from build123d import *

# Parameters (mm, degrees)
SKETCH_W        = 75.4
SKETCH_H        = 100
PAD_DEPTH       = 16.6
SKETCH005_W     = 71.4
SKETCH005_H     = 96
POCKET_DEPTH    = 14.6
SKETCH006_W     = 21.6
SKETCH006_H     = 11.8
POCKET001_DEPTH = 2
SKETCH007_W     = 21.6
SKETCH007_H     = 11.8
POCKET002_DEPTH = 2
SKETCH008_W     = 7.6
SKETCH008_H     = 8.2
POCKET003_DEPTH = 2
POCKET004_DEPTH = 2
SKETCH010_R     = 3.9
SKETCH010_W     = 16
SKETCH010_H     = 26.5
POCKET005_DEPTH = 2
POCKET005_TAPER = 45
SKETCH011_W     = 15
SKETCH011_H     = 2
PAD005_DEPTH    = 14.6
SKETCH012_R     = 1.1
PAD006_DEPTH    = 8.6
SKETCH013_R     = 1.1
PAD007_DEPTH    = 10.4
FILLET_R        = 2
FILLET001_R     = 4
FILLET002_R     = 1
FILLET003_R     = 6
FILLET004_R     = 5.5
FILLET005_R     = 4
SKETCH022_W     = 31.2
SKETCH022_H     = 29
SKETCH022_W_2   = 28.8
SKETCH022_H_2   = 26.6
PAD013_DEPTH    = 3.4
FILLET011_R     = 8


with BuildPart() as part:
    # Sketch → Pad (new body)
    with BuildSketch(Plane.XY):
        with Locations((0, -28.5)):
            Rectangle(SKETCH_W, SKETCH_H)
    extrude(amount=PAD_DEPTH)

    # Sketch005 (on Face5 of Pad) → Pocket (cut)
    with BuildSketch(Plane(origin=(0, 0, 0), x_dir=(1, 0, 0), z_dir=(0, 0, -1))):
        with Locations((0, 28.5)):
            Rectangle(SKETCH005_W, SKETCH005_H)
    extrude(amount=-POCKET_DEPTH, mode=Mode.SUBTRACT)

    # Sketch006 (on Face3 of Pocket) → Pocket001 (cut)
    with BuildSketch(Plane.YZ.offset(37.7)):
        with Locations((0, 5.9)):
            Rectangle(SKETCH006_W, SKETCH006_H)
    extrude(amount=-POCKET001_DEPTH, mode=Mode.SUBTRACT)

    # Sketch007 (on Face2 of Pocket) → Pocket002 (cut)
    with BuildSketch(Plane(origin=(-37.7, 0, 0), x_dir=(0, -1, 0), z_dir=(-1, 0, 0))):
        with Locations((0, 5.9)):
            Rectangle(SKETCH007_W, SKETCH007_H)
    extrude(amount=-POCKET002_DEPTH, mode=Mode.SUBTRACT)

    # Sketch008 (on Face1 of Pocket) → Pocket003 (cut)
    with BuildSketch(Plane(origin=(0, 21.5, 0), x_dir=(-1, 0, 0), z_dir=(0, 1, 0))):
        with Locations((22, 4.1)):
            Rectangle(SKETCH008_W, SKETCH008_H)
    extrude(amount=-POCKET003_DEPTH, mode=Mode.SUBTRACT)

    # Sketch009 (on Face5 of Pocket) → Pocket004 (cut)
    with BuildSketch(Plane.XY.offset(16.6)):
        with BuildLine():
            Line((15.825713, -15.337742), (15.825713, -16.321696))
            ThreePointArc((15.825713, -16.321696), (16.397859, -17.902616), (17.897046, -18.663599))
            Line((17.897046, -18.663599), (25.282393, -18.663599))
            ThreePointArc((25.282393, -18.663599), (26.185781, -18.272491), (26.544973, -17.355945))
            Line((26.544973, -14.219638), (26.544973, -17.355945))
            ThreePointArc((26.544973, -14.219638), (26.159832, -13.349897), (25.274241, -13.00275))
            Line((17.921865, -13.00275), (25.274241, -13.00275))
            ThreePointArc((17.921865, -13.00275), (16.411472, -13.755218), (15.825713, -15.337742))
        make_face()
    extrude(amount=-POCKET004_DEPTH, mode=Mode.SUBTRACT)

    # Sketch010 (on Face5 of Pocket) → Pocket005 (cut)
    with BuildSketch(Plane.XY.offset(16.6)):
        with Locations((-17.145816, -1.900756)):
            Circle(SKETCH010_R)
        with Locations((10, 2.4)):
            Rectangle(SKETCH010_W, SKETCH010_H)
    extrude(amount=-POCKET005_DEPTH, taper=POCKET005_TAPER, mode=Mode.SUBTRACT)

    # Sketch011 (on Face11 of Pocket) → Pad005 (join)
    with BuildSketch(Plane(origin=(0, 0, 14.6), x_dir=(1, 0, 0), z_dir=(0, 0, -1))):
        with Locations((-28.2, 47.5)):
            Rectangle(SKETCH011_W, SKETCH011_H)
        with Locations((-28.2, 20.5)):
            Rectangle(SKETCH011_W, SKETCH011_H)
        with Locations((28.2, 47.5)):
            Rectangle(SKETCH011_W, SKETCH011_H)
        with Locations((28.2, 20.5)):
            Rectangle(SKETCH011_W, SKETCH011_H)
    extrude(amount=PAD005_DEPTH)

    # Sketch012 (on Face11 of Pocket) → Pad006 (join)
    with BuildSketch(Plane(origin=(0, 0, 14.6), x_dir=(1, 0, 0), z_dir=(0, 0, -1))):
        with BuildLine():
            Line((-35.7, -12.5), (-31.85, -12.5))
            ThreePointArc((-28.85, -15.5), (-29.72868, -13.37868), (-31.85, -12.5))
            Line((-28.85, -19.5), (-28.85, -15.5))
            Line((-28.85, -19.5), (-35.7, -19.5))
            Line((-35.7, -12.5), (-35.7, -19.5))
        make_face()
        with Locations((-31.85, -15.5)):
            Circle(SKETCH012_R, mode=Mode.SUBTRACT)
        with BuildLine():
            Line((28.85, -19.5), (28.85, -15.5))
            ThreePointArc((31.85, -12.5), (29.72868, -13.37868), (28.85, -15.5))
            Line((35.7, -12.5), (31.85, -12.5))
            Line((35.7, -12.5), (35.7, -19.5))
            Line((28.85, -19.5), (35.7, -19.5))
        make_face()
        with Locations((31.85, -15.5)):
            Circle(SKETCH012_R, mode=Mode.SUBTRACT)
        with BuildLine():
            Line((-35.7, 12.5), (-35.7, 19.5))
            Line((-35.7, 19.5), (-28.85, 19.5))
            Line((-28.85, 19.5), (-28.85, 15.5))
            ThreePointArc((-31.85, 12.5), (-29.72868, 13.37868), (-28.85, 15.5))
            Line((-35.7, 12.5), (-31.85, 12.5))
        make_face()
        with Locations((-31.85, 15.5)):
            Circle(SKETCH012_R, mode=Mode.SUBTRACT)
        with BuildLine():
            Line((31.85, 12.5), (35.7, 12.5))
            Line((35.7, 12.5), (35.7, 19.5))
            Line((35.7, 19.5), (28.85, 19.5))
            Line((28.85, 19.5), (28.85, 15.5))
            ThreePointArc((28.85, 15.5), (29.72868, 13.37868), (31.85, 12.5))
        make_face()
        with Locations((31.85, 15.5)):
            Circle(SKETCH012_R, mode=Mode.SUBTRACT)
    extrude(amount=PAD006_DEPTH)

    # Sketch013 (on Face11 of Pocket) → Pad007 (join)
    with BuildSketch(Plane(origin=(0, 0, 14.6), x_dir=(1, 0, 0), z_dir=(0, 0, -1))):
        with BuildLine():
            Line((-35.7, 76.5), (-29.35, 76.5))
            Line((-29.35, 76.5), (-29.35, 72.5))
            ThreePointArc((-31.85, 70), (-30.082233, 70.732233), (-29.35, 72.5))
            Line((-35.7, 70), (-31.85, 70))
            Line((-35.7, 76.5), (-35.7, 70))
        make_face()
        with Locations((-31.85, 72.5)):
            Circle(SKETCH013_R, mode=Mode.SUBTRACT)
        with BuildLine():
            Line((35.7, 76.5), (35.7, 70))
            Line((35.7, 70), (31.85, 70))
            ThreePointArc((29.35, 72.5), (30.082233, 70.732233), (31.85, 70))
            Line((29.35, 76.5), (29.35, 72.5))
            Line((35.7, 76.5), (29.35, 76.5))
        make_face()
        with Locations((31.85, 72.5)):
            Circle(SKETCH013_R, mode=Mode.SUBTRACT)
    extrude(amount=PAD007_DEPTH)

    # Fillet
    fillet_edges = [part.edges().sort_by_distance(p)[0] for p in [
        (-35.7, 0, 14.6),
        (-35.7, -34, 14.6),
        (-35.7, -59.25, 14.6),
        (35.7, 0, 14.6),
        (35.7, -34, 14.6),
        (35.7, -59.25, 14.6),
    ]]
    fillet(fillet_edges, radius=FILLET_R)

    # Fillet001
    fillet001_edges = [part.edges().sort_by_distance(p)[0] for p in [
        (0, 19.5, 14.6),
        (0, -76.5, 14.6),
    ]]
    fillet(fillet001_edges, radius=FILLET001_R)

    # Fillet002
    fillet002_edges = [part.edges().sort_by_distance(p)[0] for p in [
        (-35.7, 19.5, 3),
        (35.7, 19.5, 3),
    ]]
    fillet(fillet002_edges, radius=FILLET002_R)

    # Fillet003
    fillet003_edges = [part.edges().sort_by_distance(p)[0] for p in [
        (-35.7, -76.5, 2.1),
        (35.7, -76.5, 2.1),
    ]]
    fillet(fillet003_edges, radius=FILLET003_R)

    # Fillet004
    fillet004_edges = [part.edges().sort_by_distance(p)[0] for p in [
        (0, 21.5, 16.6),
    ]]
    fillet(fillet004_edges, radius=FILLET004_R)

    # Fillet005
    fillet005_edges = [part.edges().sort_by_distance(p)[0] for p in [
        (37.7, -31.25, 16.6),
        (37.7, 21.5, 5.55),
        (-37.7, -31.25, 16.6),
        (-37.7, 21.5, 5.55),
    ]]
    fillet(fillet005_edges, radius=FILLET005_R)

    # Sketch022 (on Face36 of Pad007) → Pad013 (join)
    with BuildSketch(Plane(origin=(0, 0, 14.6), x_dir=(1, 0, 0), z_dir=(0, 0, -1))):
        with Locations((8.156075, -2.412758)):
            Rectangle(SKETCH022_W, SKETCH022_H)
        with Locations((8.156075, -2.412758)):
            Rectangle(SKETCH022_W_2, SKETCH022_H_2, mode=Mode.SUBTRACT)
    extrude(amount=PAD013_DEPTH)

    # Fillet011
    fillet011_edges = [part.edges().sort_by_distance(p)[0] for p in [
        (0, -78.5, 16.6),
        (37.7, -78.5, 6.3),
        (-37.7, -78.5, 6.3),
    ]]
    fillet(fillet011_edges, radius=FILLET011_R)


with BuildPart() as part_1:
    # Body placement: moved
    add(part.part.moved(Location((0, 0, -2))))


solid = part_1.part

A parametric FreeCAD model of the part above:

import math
import FreeCAD as App
import Part
import Sketcher
from FreeCAD import Vector


def edges_at(feature, points):
    """Names of the edges that pass closest to the given points."""
    edges = feature.Shape.Edges
    near = lambda p: min(range(len(edges)), key=lambda i: edges[i].distToShape(Part.Vertex(*p))[0])
    return sorted({f"Edge{near(p) + 1}" for p in points})


def add_polygon(sketch, points):
    """Adds a closed chain of lines whose ends are joined by coincident constraints."""
    first, n = sketch.GeometryCount, len(points)
    for a, b in zip(points, points[1:] + points[:1]):
        sketch.addGeometry(Part.LineSegment(App.Vector(*a, 0), App.Vector(*b, 0)), False)
    for i in range(n):
        sketch.addConstraint(Sketcher.Constraint("Coincident", first + i, 2, first + (i + 1) % n, 1))

doc = App.newDocument("Part")
body = doc.addObject("PartDesign::Body", "Body")

sketch1 = doc.addObject("Sketcher::SketchObject", "Sketch")
body.addObject(sketch1)
sketch1.AttachmentSupport = (doc.XY_Plane, [""])
sketch1.MapMode = "FlatFace"
add_polygon(sketch1, [(-37.7, 21.5), (-37.7, -78.5), (37.7, -78.5), (37.7, 21.5)])
sketch1.addConstraint([
    Sketcher.Constraint("Vertical", 0),
    Sketcher.Constraint("Horizontal", 1),
    Sketcher.Constraint("Vertical", 2),
    Sketcher.Constraint("Horizontal", 3),
    Sketcher.Constraint("DistanceY", 0, 2, 0, 1, 100.0),
    Sketcher.Constraint("DistanceX", 1, 1, 1, 2, 75.4),
    Sketcher.Constraint("DistanceX", 0, 2, -1, 1, 37.7),
    Sketcher.Constraint("DistanceY", 0, 2, -1, 1, 78.5),
])
pad1 = doc.addObject("PartDesign::Pad", "Pad")
body.addObject(pad1)
pad1.Profile = sketch1
pad1.Length = 16.6

sketch2 = doc.addObject("Sketcher::SketchObject", "Sketch001")
body.addObject(sketch2)
sketch2.AttachmentSupport = (doc.XY_Plane, [""])
sketch2.MapMode = "FlatFace"
add_polygon(sketch2, [(-35.7, -76.5), (-35.7, 19.5), (35.7, 19.5), (35.7, -76.5)])
sketch2.addConstraint([
    Sketcher.Constraint("Vertical", 0),
    Sketcher.Constraint("Horizontal", 1),
    Sketcher.Constraint("Vertical", 2),
    Sketcher.Constraint("Horizontal", 3),
    Sketcher.Constraint("DistanceY", 0, 1, 0, 2, 96.0),
    Sketcher.Constraint("DistanceX", 1, 1, 1, 2, 71.4),
    Sketcher.Constraint("DistanceX", 0, 2, -1, 1, 35.7),
    Sketcher.Constraint("DistanceY", -1, 1, 0, 2, 19.5),
])
pocket1 = doc.addObject("PartDesign::Pocket", "Pocket")
body.addObject(pocket1)
pocket1.Profile = sketch2
pocket1.Length = 14.6
pocket1.Reversed = True

sketch3 = doc.addObject("Sketcher::SketchObject", "Sketch002")
body.addObject(sketch3)
sketch3.AttachmentSupport = (doc.YZ_Plane, [""])
sketch3.MapMode = "FlatFace"
sketch3.AttachmentOffset = App.Placement(Vector(0, 0, 37.7), App.Rotation())
add_polygon(sketch3, [(-10.8, 11.8), (-10.8, 0), (10.8, 0), (10.8, 11.8)])
sketch3.addConstraint([
    Sketcher.Constraint("Vertical", 0),
    Sketcher.Constraint("Horizontal", 1),
    Sketcher.Constraint("Vertical", 2),
    Sketcher.Constraint("Horizontal", 3),
    Sketcher.Constraint("Symmetric", 0, 2, 1, 2, -1, 1),
    Sketcher.Constraint("DistanceX", 1, 1, 1, 2, 21.6),
    Sketcher.Constraint("DistanceY", 0, 2, 0, 1, 11.8),
])
pocket2 = doc.addObject("PartDesign::Pocket", "Pocket001")
body.addObject(pocket2)
pocket2.Profile = sketch3
pocket2.Length = 2

sketch4 = doc.addObject("Sketcher::SketchObject", "Sketch003")
body.addObject(sketch4)
sketch4.AttachmentSupport = (doc.YZ_Plane, [""])
sketch4.MapMode = "FlatFace"
sketch4.AttachmentOffset = App.Placement(Vector(0, 0, -37.7), App.Rotation())
add_polygon(sketch4, [(10.8, 11.8), (10.8, 0), (-10.8, 0), (-10.8, 11.8)])
sketch4.addConstraint([
    Sketcher.Constraint("Vertical", 0),
    Sketcher.Constraint("Horizontal", 1),
    Sketcher.Constraint("Vertical", 2),
    Sketcher.Constraint("Horizontal", 3),
    Sketcher.Constraint("Symmetric", 0, 2, 1, 2, -1, 1),
    Sketcher.Constraint("DistanceX", 1, 2, 1, 1, 21.6),
    Sketcher.Constraint("DistanceY", 0, 2, 0, 1, 11.8),
])
pocket3 = doc.addObject("PartDesign::Pocket", "Pocket002")
body.addObject(pocket3)
pocket3.Profile = sketch4
pocket3.Length = 2
pocket3.Reversed = True

sketch5 = doc.addObject("Sketcher::SketchObject", "Sketch004")
body.addObject(sketch5)
sketch5.AttachmentSupport = (doc.XZ_Plane, [""])
sketch5.MapMode = "FlatFace"
sketch5.AttachmentOffset = App.Placement(Vector(0, 0, -21.5), App.Rotation())
add_polygon(sketch5, [(-18.2, 8.2), (-18.2, 0), (-25.8, 0), (-25.8, 8.2)])
sketch5.addConstraint([
    Sketcher.Constraint("Vertical", 0),
    Sketcher.Constraint("Horizontal", 1),
    Sketcher.Constraint("Vertical", 2),
    Sketcher.Constraint("Horizontal", 3),
    Sketcher.Constraint("PointOnObject", 0, 2, -1),
    Sketcher.Constraint("DistanceX", 1, 2, 1, 1, 7.6),
    Sketcher.Constraint("DistanceY", 0, 2, 0, 1, 8.2),
    Sketcher.Constraint("DistanceX", 0, 2, -1, 1, 18.2),
])
pocket4 = doc.addObject("PartDesign::Pocket", "Pocket003")
body.addObject(pocket4)
pocket4.Profile = sketch5
pocket4.Length = 2
pocket4.Reversed = True

sketch6 = doc.addObject("Sketcher::SketchObject", "Sketch005")
body.addObject(sketch6)
sketch6.AttachmentSupport = (doc.XY_Plane, [""])
sketch6.MapMode = "FlatFace"
sketch6.AttachmentOffset = App.Placement(Vector(0, 0, 16.6), App.Rotation())
sketch6.addGeometry([
    Part.LineSegment(Vector(15.825713, -15.337742, 0), Vector(15.825713, -16.321696, 0)),
    Part.ArcOfCircle(Part.Circle(Vector(18.108655, -16.389475, 0), Vector(0, 0, 1), 2.283948), math.radians(178.299421), math.radians(264.683896)),
    Part.LineSegment(Vector(17.897046, -18.663599, 0), Vector(25.282393, -18.663599, 0)),
    Part.ArcOfCircle(Part.Circle(Vector(25.264188, -17.382665, 0), Vector(0, 0, 1), 1.281063), math.radians(-89.185767), math.radians(1.195145)),
    Part.LineSegment(Vector(26.544973, -17.355945, 0), Vector(26.544973, -14.219638, 0)),
    Part.ArcOfCircle(Part.Circle(Vector(25.294977, -14.253019, 0), Vector(0, 0, 1), 1.250441), math.radians(1.529725), math.radians(90.950197)),
    Part.LineSegment(Vector(25.274241, -13.00275, 0), Vector(17.921865, -13.00275, 0)),
    Part.ArcOfCircle(Part.Circle(Vector(18.116778, -15.286093, 0), Vector(0, 0, 1), 2.291647), math.radians(94.879105), math.radians(181.291444)),
], False)
sketch6.addConstraint([
    Sketcher.Constraint("Coincident", 0, 2, 1, 1),
    Sketcher.Constraint("Coincident", 1, 2, 2, 1),
    Sketcher.Constraint("Coincident", 2, 2, 3, 1),
    Sketcher.Constraint("Coincident", 3, 2, 4, 1),
    Sketcher.Constraint("Coincident", 4, 2, 5, 1),
    Sketcher.Constraint("Coincident", 5, 2, 6, 1),
    Sketcher.Constraint("Coincident", 6, 2, 7, 1),
    Sketcher.Constraint("Coincident", 7, 2, 0, 1),
    Sketcher.Constraint("Vertical", 0),
    Sketcher.Constraint("Horizontal", 2),
    Sketcher.Constraint("Vertical", 4),
    Sketcher.Constraint("Horizontal", 6),
    Sketcher.Constraint("Radius", 5, 1.250441),
    Sketcher.Constraint("Radius", 1, 2.283948),
    Sketcher.Constraint("Radius", 3, 1.281063),
    Sketcher.Constraint("Radius", 7, 2.291647),
    Sketcher.Constraint("DistanceY", 1, 2, -1, 1, 18.663599),
    Sketcher.Constraint("DistanceX", 7, 3, 5, 3, 7.1782),
    Sketcher.Constraint("DistanceX", 2, 1, 2, 2, 7.385347),
    Sketcher.Constraint("DistanceX", 6, 2, 6, 1, 7.352376),
    Sketcher.Constraint("DistanceY", 0, 2, 0, 1, 0.983954),
    Sketcher.Constraint("DistanceY", 4, 1, 4, 2, 3.136307),
    Sketcher.Constraint("DistanceX", -1, 1, 3, 3, 25.264188),
    Sketcher.Constraint("DistanceY", 5, 3, -1, 1, 14.253019),
    Sketcher.Constraint("DistanceX", -1, 1, 5, 2, 25.274241),
    Sketcher.Constraint("DistanceY", 3, 3, 1, 3, 0.99319),
    Sketcher.Constraint("DistanceX", 3, 3, 5, 3, 0.030789),
    Sketcher.Constraint("DistanceX", 0, 2, 1, 3, 2.282942),
])
pocket5 = doc.addObject("PartDesign::Pocket", "Pocket004")
body.addObject(pocket5)
pocket5.Profile = sketch6
pocket5.Length = 2

sketch7 = doc.addObject("Sketcher::SketchObject", "Sketch006")
body.addObject(sketch7)
sketch7.AttachmentSupport = (doc.XY_Plane, [""])
sketch7.MapMode = "FlatFace"
sketch7.AttachmentOffset = App.Placement(Vector(0, 0, 16.6), App.Rotation())
sketch7.addGeometry(Part.Circle(Vector(-17.145816, -1.900756, 0), Vector(0, 0, 1), 3.9), False)
add_polygon(sketch7, [(2, 15.65), (2, -10.85), (18, -10.85), (18, 15.65)])
sketch7.addConstraint([
    Sketcher.Constraint("Vertical", 1),
    Sketcher.Constraint("Horizontal", 2),
    Sketcher.Constraint("Vertical", 3),
    Sketcher.Constraint("Horizontal", 4),
    Sketcher.Constraint("Diameter", 0, 7.8),
    Sketcher.Constraint("DistanceX", 2, 1, 2, 2, 16.0),
    Sketcher.Constraint("DistanceY", 1, 2, 1, 1, 26.5),
    Sketcher.Constraint("DistanceX", -1, 1, 1, 2, 2.0),
    Sketcher.Constraint("DistanceY", 1, 2, -1, 1, 10.85),
    Sketcher.Constraint("DistanceX", 0, 3, -1, 1, 17.145816),
    Sketcher.Constraint("DistanceY", 0, 3, -1, 1, 1.900756),
])
pocket6 = doc.addObject("PartDesign::Pocket", "Pocket005")
body.addObject(pocket6)
pocket6.Profile = sketch7
pocket6.Length = 2
pocket6.TaperAngle = -45

sketch8 = doc.addObject("Sketcher::SketchObject", "Sketch007")
body.addObject(sketch8)
sketch8.AttachmentSupport = (doc.XY_Plane, [""])
sketch8.MapMode = "FlatFace"
sketch8.AttachmentOffset = App.Placement(Vector(0, 0, 14.6), App.Rotation())
add_polygon(sketch8, [(-35.7, -48.5), (-35.7, -46.5), (-20.7, -46.5), (-20.7, -48.5)])
add_polygon(sketch8, [(-35.7, -21.5), (-35.7, -19.5), (-20.7, -19.5), (-20.7, -21.5)])
add_polygon(sketch8, [(20.7, -48.5), (20.7, -46.5), (35.7, -46.5), (35.7, -48.5)])
add_polygon(sketch8, [(20.7, -21.5), (20.7, -19.5), (35.7, -19.5), (35.7, -21.5)])
sketch8.addConstraint([
    Sketcher.Constraint("Vertical", 0),
    Sketcher.Constraint("Horizontal", 1),
    Sketcher.Constraint("Vertical", 2),
    Sketcher.Constraint("Horizontal", 3),
    Sketcher.Constraint("Vertical", 4),
    Sketcher.Constraint("Horizontal", 5),
    Sketcher.Constraint("Vertical", 6),
    Sketcher.Constraint("Horizontal", 7),
    Sketcher.Constraint("Vertical", 8),
    Sketcher.Constraint("Horizontal", 9),
    Sketcher.Constraint("Vertical", 10),
    Sketcher.Constraint("Horizontal", 11),
    Sketcher.Constraint("Vertical", 12),
    Sketcher.Constraint("Horizontal", 13),
    Sketcher.Constraint("Vertical", 14),
    Sketcher.Constraint("Horizontal", 15),
    Sketcher.Constraint("Symmetric", 1, 2, 8, 2, -2),
    Sketcher.Constraint("Symmetric", 3, 2, 10, 2, -2),
    Sketcher.Constraint("Symmetric", 5, 2, 12, 2, -2),
    Sketcher.Constraint("Symmetric", 7, 2, 14, 2, -2),
    Sketcher.Constraint("Vertical", 3, 2, 4, 2),
    Sketcher.Constraint("Vertical", 2, 2, 5, 2),
    Sketcher.Constraint("Equal", 2, 4),
    Sketcher.Constraint("DistanceX", 1, 1, 1, 2, 15.0),
    Sketcher.Constraint("DistanceY", 0, 1, 0, 2, 2.0),
    Sketcher.Constraint("DistanceY", 0, 2, 4, 2, 27.0),
    Sketcher.Constraint("DistanceX", 0, 2, -1, 1, 35.7),
    Sketcher.Constraint("DistanceY", 0, 2, -1, 1, 46.5),
])
pad2 = doc.addObject("PartDesign::Pad", "Pad001")
body.addObject(pad2)
pad2.Profile = sketch8
pad2.Length = 14.6
pad2.Reversed = True

sketch9 = doc.addObject("Sketcher::SketchObject", "Sketch008")
body.addObject(sketch9)
sketch9.AttachmentSupport = (doc.XY_Plane, [""])
sketch9.MapMode = "FlatFace"
sketch9.AttachmentOffset = App.Placement(Vector(0, 0, 14.6), App.Rotation())
sketch9.addGeometry([
    Part.LineSegment(Vector(-31.85, 12.5, 0), Vector(-35.7, 12.5, 0)),
    Part.LineSegment(Vector(-35.7, 12.5, 0), Vector(-35.7, 19.5, 0)),
    Part.LineSegment(Vector(-35.7, 19.5, 0), Vector(-28.85, 19.5, 0)),
    Part.LineSegment(Vector(-28.85, 19.5, 0), Vector(-28.85, 15.5, 0)),
    Part.ArcOfCircle(Part.Circle(Vector(-31.850001, 15.500001, 0), Vector(0, 0, 1), 3.000001), math.radians(-89.999978), math.radians(-0.000022)),
    Part.Circle(Vector(-31.85, 15.5, 0), Vector(0, 0, 1), 1.1),
    Part.LineSegment(Vector(28.85, 15.5, 0), Vector(28.85, 19.5, 0)),
    Part.LineSegment(Vector(28.85, 19.5, 0), Vector(35.7, 19.5, 0)),
    Part.LineSegment(Vector(35.7, 19.5, 0), Vector(35.7, 12.5, 0)),
    Part.LineSegment(Vector(35.7, 12.5, 0), Vector(31.85, 12.5, 0)),
    Part.ArcOfCircle(Part.Circle(Vector(31.850001, 15.500001, 0), Vector(0, 0, 1), 3.000001), math.radians(-179.999978), math.radians(-90.000022)),
    Part.Circle(Vector(31.85, 15.5, 0), Vector(0, 0, 1), 1.1),
    Part.LineSegment(Vector(-35.7, -19.5, 0), Vector(-35.7, -12.5, 0)),
    Part.LineSegment(Vector(-35.7, -12.5, 0), Vector(-31.85, -12.5, 0)),
    Part.ArcOfCircle(Part.Circle(Vector(-31.850001, -15.500001, 0), Vector(0, 0, 1), 3.000001), math.radians(0.000022), math.radians(89.999978)),
    Part.LineSegment(Vector(-28.85, -15.5, 0), Vector(-28.85, -19.5, 0)),
    Part.LineSegment(Vector(-28.85, -19.5, 0), Vector(-35.7, -19.5, 0)),
    Part.Circle(Vector(-31.85, -15.5, 0), Vector(0, 0, 1), 1.1),
    Part.LineSegment(Vector(31.85, -12.5, 0), Vector(35.7, -12.5, 0)),
    Part.LineSegment(Vector(35.7, -12.5, 0), Vector(35.7, -19.5, 0)),
    Part.LineSegment(Vector(35.7, -19.5, 0), Vector(28.85, -19.5, 0)),
    Part.LineSegment(Vector(28.85, -19.5, 0), Vector(28.85, -15.5, 0)),
    Part.ArcOfCircle(Part.Circle(Vector(31.850001, -15.500001, 0), Vector(0, 0, 1), 3.000001), math.radians(90.000022), math.radians(179.999978)),
    Part.Circle(Vector(31.85, -15.5, 0), Vector(0, 0, 1), 1.1),
], False)
sketch9.addConstraint([
    Sketcher.Constraint("Coincident", 0, 2, 1, 1),
    Sketcher.Constraint("Coincident", 1, 2, 2, 1),
    Sketcher.Constraint("Coincident", 2, 2, 3, 1),
    Sketcher.Constraint("Tangent", 3, 2, 4, 2),
    Sketcher.Constraint("Tangent", 4, 1, 0, 1),
    Sketcher.Constraint("Coincident", 6, 2, 7, 1),
    Sketcher.Constraint("Coincident", 7, 2, 8, 1),
    Sketcher.Constraint("Coincident", 8, 2, 9, 1),
    Sketcher.Constraint("Tangent", 9, 2, 10, 2),
    Sketcher.Constraint("Tangent", 10, 1, 6, 1),
    Sketcher.Constraint("Coincident", 12, 2, 13, 1),
    Sketcher.Constraint("Tangent", 13, 2, 14, 2),
    Sketcher.Constraint("Tangent", 14, 1, 15, 1),
    Sketcher.Constraint("Coincident", 15, 2, 16, 1),
    Sketcher.Constraint("Coincident", 16, 2, 12, 1),
    Sketcher.Constraint("Coincident", 18, 2, 19, 1),
    Sketcher.Constraint("Coincident", 19, 2, 20, 1),
    Sketcher.Constraint("Coincident", 20, 2, 21, 1),
    Sketcher.Constraint("Tangent", 21, 2, 22, 2),
    Sketcher.Constraint("Tangent", 22, 1, 18, 1),
    Sketcher.Constraint("Horizontal", 0),
    Sketcher.Constraint("Vertical", 1),
    Sketcher.Constraint("Horizontal", 2),
    Sketcher.Constraint("Vertical", 3),
    Sketcher.Constraint("Vertical", 6),
    Sketcher.Constraint("Horizontal", 7),
    Sketcher.Constraint("Vertical", 8),
    Sketcher.Constraint("Horizontal", 9),
    Sketcher.Constraint("Vertical", 12),
    Sketcher.Constraint("Horizontal", 13),
    Sketcher.Constraint("Vertical", 15),
    Sketcher.Constraint("Horizontal", 16),
    Sketcher.Constraint("Horizontal", 18),
    Sketcher.Constraint("Vertical", 19),
    Sketcher.Constraint("Horizontal", 20),
    Sketcher.Constraint("Vertical", 21),
    Sketcher.Constraint("Coincident", 5, 3, 4, 3),
    Sketcher.Constraint("Coincident", 11, 3, 10, 3),
    Sketcher.Constraint("Coincident", 17, 3, 14, 3),
    Sketcher.Constraint("Coincident", 23, 3, 22, 3),
    Sketcher.Constraint("Equal", 4, 10),
    Sketcher.Constraint("Equal", 5, 11),
    Sketcher.Constraint("Equal", 10, 14),
    Sketcher.Constraint("Equal", 11, 17),
    Sketcher.Constraint("Equal", 14, 22),
    Sketcher.Constraint("Equal", 17, 23),
    Sketcher.Constraint("Symmetric", 10, 3, 14, 3, -1, 1),
    Sketcher.Constraint("Symmetric", 4, 3, 22, 3, -1, 1),
    Sketcher.Constraint("Symmetric", 7, 2, 16, 2, -1, 1),
    Sketcher.Constraint("Symmetric", 1, 2, 19, 2, -1, 1),
    Sketcher.Constraint("Symmetric", 4, 3, 10, 3, -2),
    Sketcher.Constraint("Symmetric", 1, 2, 7, 2, -2),
    Sketcher.Constraint("Radius", 4, 3.000001),
    Sketcher.Constraint("Diameter", 5, 2.2),
    Sketcher.Constraint("DistanceY", 1, 1, 1, 2, 7.0),
    Sketcher.Constraint("DistanceY", 14, 3, 5, 3, 31.000001),
    Sketcher.Constraint("DistanceX", 0, 2, 0, 1, 3.85),
    Sketcher.Constraint("DistanceX", 0, 2, -1, 1, 35.7),
])
pad3 = doc.addObject("PartDesign::Pad", "Pad002")
body.addObject(pad3)
pad3.Profile = sketch9
pad3.Length = 8.6
pad3.Reversed = True

sketch10 = doc.addObject("Sketcher::SketchObject", "Sketch009")
body.addObject(sketch10)
sketch10.AttachmentSupport = (doc.XY_Plane, [""])
sketch10.MapMode = "FlatFace"
sketch10.AttachmentOffset = App.Placement(Vector(0, 0, 14.6), App.Rotation())
sketch10.addGeometry([
    Part.LineSegment(Vector(-29.35, -76.5, 0), Vector(-35.7, -76.5, 0)),
    Part.LineSegment(Vector(-35.7, -76.5, 0), Vector(-35.7, -70, 0)),
    Part.LineSegment(Vector(-35.7, -70, 0), Vector(-31.85, -70, 0)),
    Part.ArcOfCircle(Part.Circle(Vector(-31.85, -72.5, 0), Vector(0, 0, 1), 2.5), math.radians(-0.000004), math.radians(90.000004)),
    Part.LineSegment(Vector(-29.35, -72.5, 0), Vector(-29.35, -76.5, 0)),
    Part.Circle(Vector(-31.85, -72.5, 0), Vector(0, 0, 1), 1.1),
    Part.LineSegment(Vector(35.7, -70, 0), Vector(35.7, -76.5, 0)),
    Part.LineSegment(Vector(35.7, -76.5, 0), Vector(29.35, -76.5, 0)),
    Part.LineSegment(Vector(29.35, -76.5, 0), Vector(29.35, -72.5, 0)),
    Part.ArcOfCircle(Part.Circle(Vector(31.85, -72.5, 0), Vector(0, 0, 1), 2.5), math.radians(89.999996), math.radians(180.000004)),
    Part.LineSegment(Vector(31.85, -70, 0), Vector(35.7, -70, 0)),
    Part.Circle(Vector(31.85, -72.5, 0), Vector(0, 0, 1), 1.1),
], False)
sketch10.addConstraint([
    Sketcher.Constraint("Coincident", 0, 2, 1, 1),
    Sketcher.Constraint("Coincident", 1, 2, 2, 1),
    Sketcher.Constraint("Tangent", 2, 2, 3, 2),
    Sketcher.Constraint("Tangent", 3, 1, 4, 1),
    Sketcher.Constraint("Coincident", 4, 2, 0, 1),
    Sketcher.Constraint("Coincident", 6, 2, 7, 1),
    Sketcher.Constraint("Coincident", 7, 2, 8, 1),
    Sketcher.Constraint("Tangent", 8, 2, 9, 2),
    Sketcher.Constraint("Tangent", 9, 1, 10, 1),
    Sketcher.Constraint("Coincident", 10, 2, 6, 1),
    Sketcher.Constraint("Horizontal", 0),
    Sketcher.Constraint("Vertical", 1),
    Sketcher.Constraint("Horizontal", 2),
    Sketcher.Constraint("Vertical", 4),
    Sketcher.Constraint("Vertical", 6),
    Sketcher.Constraint("Horizontal", 7),
    Sketcher.Constraint("Vertical", 8),
    Sketcher.Constraint("Horizontal", 10),
    Sketcher.Constraint("Coincident", 5, 3, 3, 3),
    Sketcher.Constraint("Coincident", 11, 3, 9, 3),
    Sketcher.Constraint("Equal", 3, 9),
    Sketcher.Constraint("Equal", 5, 11),
    Sketcher.Constraint("Symmetric", 3, 3, 9, 3, -2),
    Sketcher.Constraint("Symmetric", 0, 2, 6, 2, -2),
    Sketcher.Constraint("Diameter", 5, 2.2),
    Sketcher.Constraint("Radius", 3, 2.5),
    Sketcher.Constraint("DistanceY", 4, 2, 4, 1, 4.0),
    Sketcher.Constraint("DistanceY", 1, 2, -1, 1, 70.0),
    Sketcher.Constraint("DistanceX", 0, 2, 0, 1, 6.35),
    Sketcher.Constraint("DistanceX", 0, 2, -1, 1, 35.7),
])
pad4 = doc.addObject("PartDesign::Pad", "Pad003")
body.addObject(pad4)
pad4.Profile = sketch10
pad4.Length = 10.4
pad4.Reversed = True
doc.recompute()

fillet = doc.addObject("PartDesign::Fillet", "Fillet")
body.addObject(fillet)
fillet.Base = (pad4, edges_at(pad4, [
    (-35.7, 0, 14.6),
    (-35.7, -34, 14.6),
    (-35.7, -59.25, 14.6),
    (35.7, 0, 14.6),
    (35.7, -34, 14.6),
    (35.7, -59.25, 14.6),
]))
fillet.Radius = 2
doc.recompute()

fillet2 = doc.addObject("PartDesign::Fillet", "Fillet001")
body.addObject(fillet2)
fillet2.Base = (fillet, edges_at(fillet, [(0, 19.5, 14.6), (0, -76.5, 14.6)]))
fillet2.Radius = 4
doc.recompute()

fillet3 = doc.addObject("PartDesign::Fillet", "Fillet002")
body.addObject(fillet3)
fillet3.Base = (fillet2, edges_at(fillet2, [(-35.7, 19.5, 3), (35.7, 19.5, 3)]))
fillet3.Radius = 1
doc.recompute()

fillet4 = doc.addObject("PartDesign::Fillet", "Fillet003")
body.addObject(fillet4)
fillet4.Base = (fillet3, edges_at(fillet3, [(-35.7, -76.5, 2.1), (35.7, -76.5, 2.1)]))
fillet4.Radius = 6
doc.recompute()

fillet5 = doc.addObject("PartDesign::Fillet", "Fillet004")
body.addObject(fillet5)
fillet5.Base = (fillet4, edges_at(fillet4, [(0, 21.5, 16.6)]))
fillet5.Radius = 5.5
doc.recompute()

fillet6 = doc.addObject("PartDesign::Fillet", "Fillet005")
body.addObject(fillet6)
fillet6.Base = (fillet5, edges_at(fillet5, [
    (37.7, -31.25, 16.6),
    (37.7, 21.5, 5.55),
    (-37.7, -31.25, 16.6),
    (-37.7, 21.5, 5.55),
]))
fillet6.Radius = 4

sketch11 = doc.addObject("Sketcher::SketchObject", "Sketch010")
body.addObject(sketch11)
sketch11.AttachmentSupport = (doc.XY_Plane, [""])
sketch11.MapMode = "FlatFace"
sketch11.AttachmentOffset = App.Placement(Vector(0, 0, 14.6), App.Rotation())
add_polygon(sketch11, [(-7.443925, -12.087242), (-7.443925, 16.912758), (23.756075, 16.912758), (23.756075, -12.087242)])
add_polygon(sketch11, [(22.556075, 15.712758), (-6.243925, 15.712758), (-6.243925, -10.887242), (22.556075, -10.887242)])
sketch11.addConstraint([
    Sketcher.Constraint("Vertical", 0),
    Sketcher.Constraint("Horizontal", 1),
    Sketcher.Constraint("Vertical", 2),
    Sketcher.Constraint("Horizontal", 3),
    Sketcher.Constraint("Horizontal", 4),
    Sketcher.Constraint("Vertical", 5),
    Sketcher.Constraint("Horizontal", 6),
    Sketcher.Constraint("Vertical", 7),
    Sketcher.Constraint("DistanceY", 0, 1, 0, 2, 29.0),
    Sketcher.Constraint("DistanceX", 1, 1, 1, 2, 31.2),
    Sketcher.Constraint("DistanceX", 4, 2, 4, 1, 28.8),
    Sketcher.Constraint("DistanceY", 5, 2, 5, 1, 26.6),
    Sketcher.Constraint("DistanceX", 4, 2, 1, 2, 30.0),
    Sketcher.Constraint("DistanceY", 4, 2, 0, 2, 1.2),
    Sketcher.Constraint("DistanceY", -1, 1, 0, 2, 16.912758),
    Sketcher.Constraint("DistanceX", 0, 2, -1, 1, 7.443925),
])
pad5 = doc.addObject("PartDesign::Pad", "Pad004")
body.addObject(pad5)
pad5.Profile = sketch11
pad5.Length = 3.4
pad5.Reversed = True
doc.recompute()

fillet7 = doc.addObject("PartDesign::Fillet", "Fillet006")
body.addObject(fillet7)
fillet7.Base = (pad5, edges_at(pad5, [(0, -78.5, 16.6), (37.7, -78.5, 6.3), (-37.7, -78.5, 6.3)]))
fillet7.Radius = 8
body2 = doc.addObject("PartDesign::Body", "Body001")
doc.recompute()

body.Placement = App.Placement(Vector(0, 0, -2), App.Rotation(Vector(0, 0, 1), 0))
boolean = doc.addObject("PartDesign::Boolean", "Boolean")
body2.addObject(boolean)
boolean.Type = "Fuse"
boolean.addObjects([body])

doc.recompute()
